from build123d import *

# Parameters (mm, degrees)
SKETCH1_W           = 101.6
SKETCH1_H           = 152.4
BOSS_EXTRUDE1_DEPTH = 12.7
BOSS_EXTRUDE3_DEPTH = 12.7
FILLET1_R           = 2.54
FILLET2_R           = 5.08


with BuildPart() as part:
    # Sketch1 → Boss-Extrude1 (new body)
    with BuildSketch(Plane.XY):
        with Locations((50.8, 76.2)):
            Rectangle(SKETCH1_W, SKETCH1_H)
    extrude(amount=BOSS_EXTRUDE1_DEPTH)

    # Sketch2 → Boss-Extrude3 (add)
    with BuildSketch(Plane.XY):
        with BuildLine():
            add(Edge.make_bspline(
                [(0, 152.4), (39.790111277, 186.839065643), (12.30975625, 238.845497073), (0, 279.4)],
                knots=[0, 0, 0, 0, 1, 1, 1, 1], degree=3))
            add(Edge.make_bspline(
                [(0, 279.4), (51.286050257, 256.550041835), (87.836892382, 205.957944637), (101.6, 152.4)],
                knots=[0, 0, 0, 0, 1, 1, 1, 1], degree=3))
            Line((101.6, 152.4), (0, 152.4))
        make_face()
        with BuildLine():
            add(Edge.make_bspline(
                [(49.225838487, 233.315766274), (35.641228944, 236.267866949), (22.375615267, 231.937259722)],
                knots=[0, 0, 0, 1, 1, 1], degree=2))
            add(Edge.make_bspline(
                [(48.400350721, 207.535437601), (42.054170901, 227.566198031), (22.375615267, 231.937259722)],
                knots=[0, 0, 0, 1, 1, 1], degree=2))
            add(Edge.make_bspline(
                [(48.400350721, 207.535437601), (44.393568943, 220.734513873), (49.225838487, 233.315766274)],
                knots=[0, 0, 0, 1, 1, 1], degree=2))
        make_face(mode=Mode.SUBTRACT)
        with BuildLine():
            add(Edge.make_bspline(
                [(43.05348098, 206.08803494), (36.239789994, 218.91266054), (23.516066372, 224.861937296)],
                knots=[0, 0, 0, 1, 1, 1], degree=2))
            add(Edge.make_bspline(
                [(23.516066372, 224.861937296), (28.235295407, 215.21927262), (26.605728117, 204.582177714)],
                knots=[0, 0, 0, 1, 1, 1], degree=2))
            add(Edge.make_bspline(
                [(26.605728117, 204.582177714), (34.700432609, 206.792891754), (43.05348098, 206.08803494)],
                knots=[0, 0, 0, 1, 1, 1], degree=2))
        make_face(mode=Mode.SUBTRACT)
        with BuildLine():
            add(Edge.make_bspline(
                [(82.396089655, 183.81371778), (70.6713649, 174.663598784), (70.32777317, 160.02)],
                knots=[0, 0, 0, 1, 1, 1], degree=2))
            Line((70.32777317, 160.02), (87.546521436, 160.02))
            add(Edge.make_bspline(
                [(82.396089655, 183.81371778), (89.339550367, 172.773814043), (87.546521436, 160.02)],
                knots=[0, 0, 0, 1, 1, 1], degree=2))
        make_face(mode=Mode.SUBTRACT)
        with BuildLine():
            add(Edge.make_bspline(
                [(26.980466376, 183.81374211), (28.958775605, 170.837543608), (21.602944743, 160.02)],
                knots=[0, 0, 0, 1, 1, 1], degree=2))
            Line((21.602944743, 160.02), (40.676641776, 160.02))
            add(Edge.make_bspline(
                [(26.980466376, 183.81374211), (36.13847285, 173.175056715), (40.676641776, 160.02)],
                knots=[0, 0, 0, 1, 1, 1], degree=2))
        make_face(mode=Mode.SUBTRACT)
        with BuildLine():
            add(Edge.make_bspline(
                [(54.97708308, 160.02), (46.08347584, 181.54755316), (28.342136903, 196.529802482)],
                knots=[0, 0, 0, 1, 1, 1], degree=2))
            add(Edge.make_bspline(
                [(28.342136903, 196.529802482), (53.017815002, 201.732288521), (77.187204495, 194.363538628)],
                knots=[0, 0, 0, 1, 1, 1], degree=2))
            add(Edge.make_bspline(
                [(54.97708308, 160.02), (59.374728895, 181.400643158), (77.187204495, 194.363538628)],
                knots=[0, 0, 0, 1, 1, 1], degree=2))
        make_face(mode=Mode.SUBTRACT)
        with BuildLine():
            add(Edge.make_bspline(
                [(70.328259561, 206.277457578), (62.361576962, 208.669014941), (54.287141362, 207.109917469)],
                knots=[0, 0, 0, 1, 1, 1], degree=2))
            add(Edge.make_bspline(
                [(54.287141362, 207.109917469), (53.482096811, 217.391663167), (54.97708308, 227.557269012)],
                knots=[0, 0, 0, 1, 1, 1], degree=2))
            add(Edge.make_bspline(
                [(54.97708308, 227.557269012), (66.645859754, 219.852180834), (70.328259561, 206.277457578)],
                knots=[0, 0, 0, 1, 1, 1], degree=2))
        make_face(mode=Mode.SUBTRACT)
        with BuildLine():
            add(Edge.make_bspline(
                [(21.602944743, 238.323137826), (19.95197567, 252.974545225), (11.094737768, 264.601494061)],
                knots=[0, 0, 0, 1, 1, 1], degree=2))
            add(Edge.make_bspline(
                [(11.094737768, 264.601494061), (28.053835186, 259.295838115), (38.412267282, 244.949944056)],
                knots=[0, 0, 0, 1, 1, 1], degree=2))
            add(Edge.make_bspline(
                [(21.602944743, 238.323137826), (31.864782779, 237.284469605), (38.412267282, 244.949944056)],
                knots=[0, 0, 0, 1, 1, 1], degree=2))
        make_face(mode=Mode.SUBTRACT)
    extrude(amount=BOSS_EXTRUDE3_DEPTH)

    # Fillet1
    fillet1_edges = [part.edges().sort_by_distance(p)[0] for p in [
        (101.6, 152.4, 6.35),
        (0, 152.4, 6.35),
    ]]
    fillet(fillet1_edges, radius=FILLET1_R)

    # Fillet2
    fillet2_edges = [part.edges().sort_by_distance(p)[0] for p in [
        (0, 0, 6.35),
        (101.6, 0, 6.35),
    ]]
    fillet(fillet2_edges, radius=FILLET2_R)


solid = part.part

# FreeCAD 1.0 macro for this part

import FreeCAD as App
import Part
import Sketcher
from FreeCAD import Vector
Q = App.Units.Quantity


def edges_at(feature, points):
    """Names of the edges that pass closest to the given points."""
    edges = feature.Shape.Edges
    near = lambda p: min(range(len(edges)), key=lambda i: edges[i].distToShape(Part.Vertex(*p))[0])
    return sorted({f"Edge{near(p) + 1}" for p in points})


def add_polygon(sketch, points):
    """Adds a closed chain of lines whose ends are joined by coincident constraints."""
    first, n = sketch.GeometryCount, len(points)
    for a, b in zip(points, points[1:] + points[:1]):
        sketch.addGeometry(Part.LineSegment(App.Vector(*a, 0), App.Vector(*b, 0)), False)
    for i in range(n):
        sketch.addConstraint(Sketcher.Constraint("Coincident", first + i, 2, first + (i + 1) % n, 1))

doc = App.newDocument("Part")
body = doc.addObject("PartDesign::Body", "Body")

# Sketch on XY plane
sketch1 = body.newObject("Sketcher::SketchObject", "Sketch")
sketch1.AttachmentSupport = (doc.getObject("XY_Plane"), [""])
sketch1.MapMode = "FlatFace"
add_polygon(sketch1, [(0, 152), (0, 0), (102, 0), (102, 152)])  # lines 0-3
sketch1.addConstraint([
    Sketcher.Constraint("Vertical", 0),
    Sketcher.Constraint("Horizontal", 1),
    Sketcher.Constraint("Vertical", 2),
    Sketcher.Constraint("Horizontal", 3),
    Sketcher.Constraint("Coincident", 0, 2, -1, 1),
    Sketcher.Constraint("DistanceX", 1, 1, 1, 2, Q("4 in")),
    Sketcher.Constraint("DistanceY", 0, 2, 0, 1, Q("6 in")),
])
pad1 = body.newObject("PartDesign::Pad", "Pad")
pad1.Profile = sketch1
pad1.Length = Q("0.5 in")

# Sketch on XY plane
sketch2 = body.newObject("Sketcher::SketchObject", "Sketch001")
sketch2.AttachmentSupport = (doc.getObject("XY_Plane"), [""])
sketch2.MapMode = "FlatFace"
sketch2.addGeometry([
    Part.BSplineCurve([Vector(0, 152.4, 0), Vector(39.790111, 186.839066, 0), Vector(12.309756, 238.845497, 0), Vector(0, 279.4, 0)], [4, 4], [0, 1], False, 3, [1, 1, 1, 1], False),  # 0
    Part.LineSegment(Vector(0, 152.4, 0), Vector(101.6, 152.4, 0)),  # 1
    Part.BSplineCurve([Vector(0, 279.4, 0), Vector(51.28605, 256.550042, 0), Vector(87.836892, 205.957945, 0), Vector(101.6, 152.4, 0)], [4, 4], [0, 1], False, 3, [1, 1, 1, 1], False),  # 2
    Part.BSplineCurve([Vector(82.39609, 183.813718, 0), Vector(89.33955, 172.773814, 0), Vector(87.546521, 160.02, 0)], [3, 3], [0, 1], False, 2, [1, 1, 1], False),  # 3
    Part.LineSegment(Vector(87.546521, 160.02, 0), Vector(70.327773, 160.02, 0)),  # 4
    Part.BSplineCurve([Vector(82.39609, 183.813718, 0), Vector(70.671365, 174.663599, 0), Vector(70.327773, 160.02, 0)], [3, 3], [0, 1], False, 2, [1, 1, 1], False),  # 5
    Part.BSplineCurve([Vector(54.977083, 160.02, 0), Vector(46.083476, 181.547553, 0), Vector(28.342137, 196.529802, 0)], [3, 3], [0, 1], False, 2, [1, 1, 1], False),  # 6
    Part.BSplineCurve([Vector(28.342137, 196.529802, 0), Vector(53.017815, 201.732289, 0), Vector(77.187204, 194.363539, 0)], [3, 3], [0, 1], False, 2, [1, 1, 1], False),  # 7
    Part.BSplineCurve([Vector(54.977083, 160.02, 0), Vector(59.374729, 181.400643, 0), Vector(77.187204, 194.363539, 0)], [3, 3], [0, 1], False, 2, [1, 1, 1], False),  # 8
    Part.BSplineCurve([Vector(26.980466, 183.813742, 0), Vector(36.138473, 173.175057, 0), Vector(40.676642, 160.02, 0)], [3, 3], [0, 1], False, 2, [1, 1, 1], False),  # 9
    Part.LineSegment(Vector(40.676642, 160.02, 0), Vector(21.602945, 160.02, 0)),  # 10
    Part.BSplineCurve([Vector(26.980466, 183.813742, 0), Vector(28.958776, 170.837544, 0), Vector(21.602945, 160.02, 0)], [3, 3], [0, 1], False, 2, [1, 1, 1], False),  # 11
    Part.BSplineCurve([Vector(70.32826, 206.277458, 0), Vector(62.361577, 208.669015, 0), Vector(54.287141, 207.109917, 0)], [3, 3], [0, 1], False, 2, [1, 1, 1], False),  # 12
    Part.BSplineCurve([Vector(54.287141, 207.109917, 0), Vector(53.482097, 217.391663, 0), Vector(54.977083, 227.557269, 0)], [3, 3], [0, 1], False, 2, [1, 1, 1], False),  # 13
    Part.BSplineCurve([Vector(54.977083, 227.557269, 0), Vector(66.64586, 219.852181, 0), Vector(70.32826, 206.277458, 0)], [3, 3], [0, 1], False, 2, [1, 1, 1], False),  # 14
    Part.BSplineCurve([Vector(26.605728, 204.582178, 0), Vector(34.700433, 206.792892, 0), Vector(43.053481, 206.088035, 0)], [3, 3], [0, 1], False, 2, [1, 1, 1], False),  # 15
    Part.BSplineCurve([Vector(23.516066, 224.861937, 0), Vector(28.235295, 215.219273, 0), Vector(26.605728, 204.582178, 0)], [3, 3], [0, 1], False, 2, [1, 1, 1], False),  # 16
    Part.BSplineCurve([Vector(43.053481, 206.088035, 0), Vector(36.23979, 218.912661, 0), Vector(23.516066, 224.861937, 0)], [3, 3], [0, 1], False, 2, [1, 1, 1], False),  # 17
    Part.BSplineCurve([Vector(48.400351, 207.535438, 0), Vector(44.393569, 220.734514, 0), Vector(49.225838, 233.315766, 0)], [3, 3], [0, 1], False, 2, [1, 1, 1], False),  # 18
    Part.BSplineCurve([Vector(48.400351, 207.535438, 0), Vector(42.054171, 227.566198, 0), Vector(22.375615, 231.93726, 0)], [3, 3], [0, 1], False, 2, [1, 1, 1], False),  # 19
    Part.BSplineCurve([Vector(49.225838, 233.315766, 0), Vector(35.641229, 236.267867, 0), Vector(22.375615, 231.93726, 0)], [3, 3], [0, 1], False, 2, [1, 1, 1], False),  # 20
    Part.BSplineCurve([Vector(21.602945, 238.323138, 0), Vector(19.951976, 252.974545, 0), Vector(11.094738, 264.601494, 0)], [3, 3], [0, 1], False, 2, [1, 1, 1], False),  # 21
    Part.BSplineCurve([Vector(11.094738, 264.601494, 0), Vector(28.053835, 259.295838, 0), Vector(38.412267, 244.949944, 0)], [3, 3], [0, 1], False, 2, [1, 1, 1], False),  # 22
    Part.BSplineCurve([Vector(21.602945, 238.323138, 0), Vector(31.864783, 237.28447, 0), Vector(38.412267, 244.949944, 0)], [3, 3], [0, 1], False, 2, [1, 1, 1], False),  # 23
], False)
sketch2.addConstraint([
    Sketcher.Constraint("Block", 0),
    Sketcher.Constraint("Block", 2),
    Sketcher.Constraint("Block", 3),
    Sketcher.Constraint("Block", 5),
    Sketcher.Constraint("Block", 6),
    Sketcher.Constraint("Block", 7),
    Sketcher.Constraint("Block", 8),
    Sketcher.Constraint("Block", 9),
    Sketcher.Constraint("Block", 11),
    Sketcher.Constraint("Block", 12),
    Sketcher.Constraint("Block", 13),
    Sketcher.Constraint("Block", 14),
    Sketcher.Constraint("Block", 15),
    Sketcher.Constraint("Block", 16),
    Sketcher.Constraint("Block", 17),
    Sketcher.Constraint("Block", 18),
    Sketcher.Constraint("Block", 19),
    Sketcher.Constraint("Block", 20),
    Sketcher.Constraint("Block", 21),
    Sketcher.Constraint("Block", 22),
    Sketcher.Constraint("Block", 23),
    Sketcher.Constraint("Coincident", 0, 1, 1, 1),
    Sketcher.Constraint("Coincident", 1, 2, 2, 2),
    Sketcher.Constraint("Coincident", 3, 2, 4, 1),
    Sketcher.Constraint("Coincident", 4, 2, 5, 2),
    Sketcher.Constraint("Coincident", 9, 2, 10, 1),
    Sketcher.Constraint("Coincident", 10, 2, 11, 2),
])
pad2 = body.newObject("PartDesign::Pad", "Pad001")
pad2.Profile = sketch2
pad2.Length = Q("0.5 in")
doc.recompute()

fillet = body.newObject("PartDesign::Fillet", "Fillet")
fillet.Base = (pad2, edges_at(pad2, [(101.6, 152.4, 6.35), (0, 152.4, 6.35)]))
fillet.Radius = Q("0.1 in")
doc.recompute()

fillet2 = body.newObject("PartDesign::Fillet", "Fillet001")
fillet2.Base = (fillet, edges_at(fillet, [(0, 0, 6.35), (101.6, 0, 6.35)]))
fillet2.Radius = Q("0.2 in")

doc.recompute()
